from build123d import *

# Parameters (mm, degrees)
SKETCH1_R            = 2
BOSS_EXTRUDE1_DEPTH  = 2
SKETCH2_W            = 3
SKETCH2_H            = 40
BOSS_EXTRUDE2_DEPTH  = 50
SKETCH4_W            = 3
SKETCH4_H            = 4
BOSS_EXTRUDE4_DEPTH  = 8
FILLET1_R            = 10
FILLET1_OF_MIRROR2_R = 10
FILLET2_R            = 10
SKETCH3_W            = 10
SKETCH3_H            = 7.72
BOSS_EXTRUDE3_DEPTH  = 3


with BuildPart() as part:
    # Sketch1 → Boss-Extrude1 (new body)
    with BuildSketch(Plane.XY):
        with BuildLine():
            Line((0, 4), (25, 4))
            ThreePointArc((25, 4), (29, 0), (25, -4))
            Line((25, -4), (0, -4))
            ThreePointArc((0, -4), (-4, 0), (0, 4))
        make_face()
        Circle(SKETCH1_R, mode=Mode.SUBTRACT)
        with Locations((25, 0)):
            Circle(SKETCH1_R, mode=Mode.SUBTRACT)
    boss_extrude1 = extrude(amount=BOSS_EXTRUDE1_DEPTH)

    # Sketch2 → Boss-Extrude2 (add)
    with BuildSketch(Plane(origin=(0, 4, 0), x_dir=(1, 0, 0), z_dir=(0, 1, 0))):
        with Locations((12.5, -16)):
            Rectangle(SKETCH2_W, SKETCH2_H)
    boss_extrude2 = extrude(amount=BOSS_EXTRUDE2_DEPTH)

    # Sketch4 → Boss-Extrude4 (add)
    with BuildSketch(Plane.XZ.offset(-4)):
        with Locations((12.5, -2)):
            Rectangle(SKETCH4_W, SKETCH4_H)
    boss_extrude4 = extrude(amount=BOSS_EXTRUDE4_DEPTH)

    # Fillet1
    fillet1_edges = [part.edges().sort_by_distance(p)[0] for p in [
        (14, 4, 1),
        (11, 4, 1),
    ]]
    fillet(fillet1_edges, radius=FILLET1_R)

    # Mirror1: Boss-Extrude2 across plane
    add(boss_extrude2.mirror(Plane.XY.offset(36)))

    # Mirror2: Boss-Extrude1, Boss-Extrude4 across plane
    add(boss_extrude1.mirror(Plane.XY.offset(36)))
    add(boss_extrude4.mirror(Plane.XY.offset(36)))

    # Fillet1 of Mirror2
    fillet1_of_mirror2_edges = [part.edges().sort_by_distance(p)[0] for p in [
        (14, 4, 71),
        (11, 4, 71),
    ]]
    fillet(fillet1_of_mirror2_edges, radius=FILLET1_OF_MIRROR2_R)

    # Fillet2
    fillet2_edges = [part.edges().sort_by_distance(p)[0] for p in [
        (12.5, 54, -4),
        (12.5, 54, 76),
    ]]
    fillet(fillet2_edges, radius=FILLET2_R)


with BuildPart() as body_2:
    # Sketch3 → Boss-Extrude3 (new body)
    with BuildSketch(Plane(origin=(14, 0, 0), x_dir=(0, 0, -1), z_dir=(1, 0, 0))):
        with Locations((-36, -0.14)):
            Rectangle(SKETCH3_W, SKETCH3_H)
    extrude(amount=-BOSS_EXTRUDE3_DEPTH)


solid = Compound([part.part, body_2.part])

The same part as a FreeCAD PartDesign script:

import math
import FreeCAD as App
import Part
import Sketcher
from FreeCAD import Vector
Q = App.Units.Quantity


def edges_at(feature, points):
    """Names of the edges that pass closest to the given points."""
    edges = feature.Shape.Edges
    near = lambda p: min(range(len(edges)), key=lambda i: edges[i].distToShape(Part.Vertex(*p))[0])
    return sorted({f"Edge{near(p) + 1}" for p in points})


def add_polygon(sketch, points):
    """Adds a closed chain of lines whose ends are joined by coincident constraints."""
    first, n = sketch.GeometryCount, len(points)
    for a, b in zip(points, points[1:] + points[:1]):
        sketch.addGeometry(Part.LineSegment(App.Vector(*a, 0), App.Vector(*b, 0)), False)
    for i in range(n):
        sketch.addConstraint(Sketcher.Constraint("Coincident", first + i, 2, first + (i + 1) % n, 1))

doc = App.newDocument("Part")
body = doc.addObject("PartDesign::Body", "Body")

# Sketch on XY plane
sketch1 = doc.addObject("Sketcher::SketchObject", "Sketch")
body.addObject(sketch1)
sketch1.AttachmentSupport = (doc.XY_Plane, [""])
sketch1.MapMode = "FlatFace"
sketch1.addGeometry(Part.LineSegment(Vector(25, 4, 0), Vector(0, 4, 0)), False)
sketch1.addGeometry(Part.ArcOfCircle(Part.Circle(Vector(0, 0, 0), Vector(0, 0, 1), 4), math.radians(90), math.radians(270)), False)
sketch1.addGeometry(Part.LineSegment(Vector(0, -4, 0), Vector(25, -4, 0)), False)
sketch1.addGeometry(Part.ArcOfCircle(Part.Circle(Vector(25, 0, 0), Vector(0, 0, 1), 4), math.radians(-90), math.radians(90)), False)
sketch1.addGeometry(Part.Circle(Vector(25, 0, 0), Vector(0, 0, 1), 2), False)
sketch1.addGeometry(Part.Circle(Vector(0, 0, 0), Vector(0, 0, 1), 2), False)
sketch1.addConstraint(Sketcher.Constraint("Tangent", 0, 2, 1, 1))
sketch1.addConstraint(Sketcher.Constraint("Tangent", 1, 2, 2, 1))
sketch1.addConstraint(Sketcher.Constraint("Tangent", 2, 2, 3, 1))
sketch1.addConstraint(Sketcher.Constraint("Tangent", 3, 2, 0, 1))
sketch1.addConstraint(Sketcher.Constraint("Horizontal", 0))
sketch1.addConstraint(Sketcher.Constraint("Horizontal", 2))
sketch1.addConstraint(Sketcher.Constraint("Coincident", 1, 3, -1, 1))
sketch1.addConstraint(Sketcher.Constraint("Coincident", 5, 3, -1, 1))
sketch1.addConstraint(Sketcher.Constraint("Coincident", 4, 3, 3, 3))
sketch1.addConstraint(Sketcher.Constraint("Equal", 4, 5))
sketch1.addConstraint(Sketcher.Constraint("Diameter", 4, Q("4 mm")))
sketch1.addConstraint(Sketcher.Constraint("Radius", 1, Q("4 mm")))
sketch1.addConstraint(Sketcher.Constraint("DistanceX", 0, 2, 0, 1, Q("25 mm")))
pad1 = doc.addObject("PartDesign::Pad", "Pad")
body.addObject(pad1)
pad1.Profile = sketch1
pad1.Length = 2

# Sketch on XZ plane
sketch2 = doc.addObject("Sketcher::SketchObject", "Sketch001")
body.addObject(sketch2)
sketch2.AttachmentSupport = (doc.XZ_Plane, [""])
sketch2.MapMode = "FlatFace"
sketch2.AttachmentOffset = App.Placement(Vector(0, 0, -4), App.Rotation())
add_polygon(sketch2, [(11, -4), (11, 36), (14, 36), (14, -4)])  # lines 0-3
sketch2.addConstraint(Sketcher.Constraint("Vertical", 0))
sketch2.addConstraint(Sketcher.Constraint("Horizontal", 1))
sketch2.addConstraint(Sketcher.Constraint("Vertical", 2))
sketch2.addConstraint(Sketcher.Constraint("Horizontal", 3))
sketch2.addConstraint(Sketcher.Constraint("DistanceX", 1, 1, 1, 2, Q("3 mm")))
sketch2.addConstraint(Sketcher.Constraint("DistanceY", 0, 1, 0, 2, Q("40 mm")))
sketch2.addConstraint(Sketcher.Constraint("DistanceX", -1, 1, 0, 2, Q("11 mm")))
sketch2.addConstraint(Sketcher.Constraint("DistanceY", -1, 1, 0, 2, Q("36 mm")))
pad2 = doc.addObject("PartDesign::Pad", "Pad001")
body.addObject(pad2)
pad2.Profile = sketch2
pad2.Length = 50
pad2.Reversed = True

# Sketch on XZ plane
sketch3 = doc.addObject("Sketcher::SketchObject", "Sketch002")
body.addObject(sketch3)
sketch3.AttachmentSupport = (doc.XZ_Plane, [""])
sketch3.MapMode = "FlatFace"
sketch3.AttachmentOffset = App.Placement(Vector(0, 0, -4), App.Rotation())
add_polygon(sketch3, [(11, 0), (11, -4), (14, -4), (14, 0)])  # lines 0-3
sketch3.addConstraint(Sketcher.Constraint("Vertical", 0))
sketch3.addConstraint(Sketcher.Constraint("Horizontal", 1))
sketch3.addConstraint(Sketcher.Constraint("Vertical", 2))
sketch3.addConstraint(Sketcher.Constraint("Horizontal", 3))
sketch3.addConstraint(Sketcher.Constraint("PointOnObject", 2, 2, -1))
sketch3.addConstraint(Sketcher.Constraint("DistanceX", 1, 1, 1, 2, Q("3 mm")))
sketch3.addConstraint(Sketcher.Constraint("DistanceY", 0, 2, 0, 1, Q("4 mm")))
sketch3.addConstraint(Sketcher.Constraint("DistanceX", -1, 1, 0, 2, Q("11 mm")))
pad3 = doc.addObject("PartDesign::Pad", "Pad002")
body.addObject(pad3)
pad3.Profile = sketch3
pad3.Length = 8
doc.recompute()

fillet = doc.addObject("PartDesign::Fillet", "Fillet")
body.addObject(fillet)
fillet.Base = (pad3, edges_at(pad3, [(14, 4, 1), (11, 4, 1)]))
fillet.Radius = 10
doc.recompute()

datumplane = doc.addObject("PartDesign::Plane", "DatumPlane")
body.addObject(datumplane)
datumplane.AttachmentSupport = (doc.XY_Plane, [""])
datumplane.MapMode = "FlatFace"
datumplane.AttachmentOffset = App.Placement(Vector(0, 0, 36), App.Rotation())
mirrored = doc.addObject("PartDesign::Mirrored", "Mirrored")
body.addObject(mirrored)
mirrored.Originals = [pad2]
mirrored.MirrorPlane = (datumplane, [""])
body.Tip = mirrored
doc.recompute()

datumplane2 = doc.addObject("PartDesign::Plane", "DatumPlane001")
body.addObject(datumplane2)
datumplane2.AttachmentSupport = (doc.XY_Plane, [""])
datumplane2.MapMode = "FlatFace"
datumplane2.AttachmentOffset = App.Placement(Vector(0, 0, 36), App.Rotation())
mirrored2 = doc.addObject("PartDesign::Mirrored", "Mirrored001")
body.addObject(mirrored2)
mirrored2.Originals = [pad1, pad3]
mirrored2.MirrorPlane = (datumplane2, [""])
body.Tip = mirrored2
doc.recompute()

fillet2 = doc.addObject("PartDesign::Fillet", "Fillet001")
body.addObject(fillet2)
fillet2.Base = (mirrored2, edges_at(mirrored2, [(14, 4, 71), (11, 4, 71)]))
fillet2.Radius = 10
doc.recompute()

fillet3 = doc.addObject("PartDesign::Fillet", "Fillet002")
body.addObject(fillet3)
fillet3.Base = (fillet2, edges_at(fillet2, [(12.5, 54, -4), (12.5, 54, 76)]))
fillet3.Radius = 10
body2 = doc.addObject("PartDesign::Body", "Body001")

# Sketch on YZ plane
sketch4 = doc.addObject("Sketcher::SketchObject", "Sketch003")
body2.addObject(sketch4)
sketch4.AttachmentSupport = (doc.getObject("YZ_Plane001"), [""])
sketch4.MapMode = "FlatFace"
sketch4.AttachmentOffset = App.Placement(Vector(0, 0, 14), App.Rotation())
add_polygon(sketch4, [(3.72, 41), (-4, 41), (-4, 31), (3.72, 31)])  # lines 0-3
sketch4.addConstraint(Sketcher.Constraint("Horizontal", 0))
sketch4.addConstraint(Sketcher.Constraint("Vertical", 1))
sketch4.addConstraint(Sketcher.Constraint("Horizontal", 2))
sketch4.addConstraint(Sketcher.Constraint("Vertical", 3))
sketch4.addConstraint(Sketcher.Constraint("DistanceY", 1, 2, 1, 1, Q("10 mm")))
sketch4.addConstraint(Sketcher.Constraint("DistanceX", 0, 2, -1, 1, Q("4 mm")))
sketch4.addConstraint(Sketcher.Constraint("DistanceY", -1, 1, 0, 2, Q("41 mm")))
sketch4.addConstraint(Sketcher.Constraint("DistanceX", 0, 2, 0, 1, Q("7.72 mm")))
pad4 = doc.addObject("PartDesign::Pad", "Pad003")
body2.addObject(pad4)
pad4.Profile = sketch4
pad4.Length = 3
pad4.Reversed = True

doc.recompute()
